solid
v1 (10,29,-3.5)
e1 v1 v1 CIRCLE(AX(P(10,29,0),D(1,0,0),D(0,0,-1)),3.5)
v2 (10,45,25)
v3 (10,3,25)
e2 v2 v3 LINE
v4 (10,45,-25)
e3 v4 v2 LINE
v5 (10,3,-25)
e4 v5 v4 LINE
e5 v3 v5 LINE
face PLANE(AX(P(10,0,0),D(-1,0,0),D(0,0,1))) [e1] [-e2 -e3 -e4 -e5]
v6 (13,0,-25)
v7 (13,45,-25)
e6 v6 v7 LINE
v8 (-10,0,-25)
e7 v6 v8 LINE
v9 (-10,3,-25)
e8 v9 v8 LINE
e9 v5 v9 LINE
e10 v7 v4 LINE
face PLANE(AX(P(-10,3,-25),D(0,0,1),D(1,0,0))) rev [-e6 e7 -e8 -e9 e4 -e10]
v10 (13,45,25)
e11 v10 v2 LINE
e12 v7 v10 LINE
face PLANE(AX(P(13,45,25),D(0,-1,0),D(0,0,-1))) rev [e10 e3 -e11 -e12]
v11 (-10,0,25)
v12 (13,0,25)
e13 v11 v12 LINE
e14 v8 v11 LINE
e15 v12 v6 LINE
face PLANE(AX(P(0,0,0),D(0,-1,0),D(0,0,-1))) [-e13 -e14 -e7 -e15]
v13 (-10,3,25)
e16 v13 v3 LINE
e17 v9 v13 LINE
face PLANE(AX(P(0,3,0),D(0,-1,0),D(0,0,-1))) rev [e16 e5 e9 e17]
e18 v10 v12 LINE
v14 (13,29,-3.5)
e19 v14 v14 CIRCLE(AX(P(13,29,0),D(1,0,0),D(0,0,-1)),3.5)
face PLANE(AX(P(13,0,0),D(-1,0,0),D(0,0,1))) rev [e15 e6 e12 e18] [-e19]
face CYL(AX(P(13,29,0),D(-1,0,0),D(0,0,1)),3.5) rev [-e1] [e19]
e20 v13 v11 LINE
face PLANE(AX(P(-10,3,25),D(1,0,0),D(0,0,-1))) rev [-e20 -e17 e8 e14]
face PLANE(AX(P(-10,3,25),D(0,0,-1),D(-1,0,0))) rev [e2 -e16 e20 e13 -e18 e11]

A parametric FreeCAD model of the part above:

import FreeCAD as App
import Part
import Sketcher
from FreeCAD import Vector
Q = App.Units.Quantity

doc = App.newDocument("Part")
body = doc.addObject("PartDesign::Body", "Body")

sketch1 = body.newObject("Sketcher::SketchObject", "Sketch")
sketch1.AttachmentSupport = (doc.getObject("XZ_Plane"), [""])
sketch1.MapMode = "FlatFace"
sketch1.addGeometry([
    Part.LineSegment(Vector(-10, -25, 0), Vector(-10, 25, 0)),
    Part.LineSegment(Vector(-10, 25, 0), Vector(10, 25, 0)),
    Part.LineSegment(Vector(10, 25, 0), Vector(10, -25, 0)),
    Part.LineSegment(Vector(10, -25, 0), Vector(-10, -25, 0)),
], False)
sketch1.addConstraint([
    Sketcher.Constraint("Coincident", 0, 2, 1, 1),
    Sketcher.Constraint("Coincident", 1, 2, 2, 1),
    Sketcher.Constraint("Coincident", 2, 2, 3, 1),
    Sketcher.Constraint("Coincident", 3, 2, 0, 1),
    Sketcher.Constraint("Vertical", 0),
    Sketcher.Constraint("Horizontal", 1),
    Sketcher.Constraint("Vertical", 2),
    Sketcher.Constraint("Horizontal", 3),
    Sketcher.Constraint("Symmetric", 0, 2, 2, 2, -1, 1),
    Sketcher.Constraint("DistanceX", 1, 1, 1, 2, Q("20 mm")),
    Sketcher.Constraint("DistanceY", 0, 1, 0, 2, Q("50 mm")),
])
pad1 = body.newObject("PartDesign::Pad", "Pad")
pad1.Profile = sketch1
pad1.Length = 3
pad1.Reversed = True

sketch2 = body.newObject("Sketcher::SketchObject", "Sketch001")
sketch2.AttachmentSupport = (doc.getObject("YZ_Plane"), [""])
sketch2.MapMode = "FlatFace"
sketch2.AttachmentOffset = App.Placement(Vector(0, 0, 10), App.Rotation())
sketch2.addGeometry([
    Part.LineSegment(Vector(45, 25, 0), Vector(0, 25, 0)),
    Part.LineSegment(Vector(0, 25, 0), Vector(0, -25, 0)),
    Part.LineSegment(Vector(0, -25, 0), Vector(45, -25, 0)),
    Part.LineSegment(Vector(45, -25, 0), Vector(45, 25, 0)),
    Part.Circle(Vector(29, 0, 0), Vector(0, 0, 1), 3.5),
], False)
sketch2.addConstraint([
    Sketcher.Constraint("Coincident", 0, 2, 1, 1),
    Sketcher.Constraint("Coincident", 1, 2, 2, 1),
    Sketcher.Constraint("Coincident", 2, 2, 3, 1),
    Sketcher.Constraint("Coincident", 3, 2, 0, 1),
    Sketcher.Constraint("Horizontal", 0),
    Sketcher.Constraint("Vertical", 1),
    Sketcher.Constraint("Horizontal", 2),
    Sketcher.Constraint("Vertical", 3),
    Sketcher.Constraint("Symmetric", 0, 2, 1, 2, -1, 1),
    Sketcher.Constraint("PointOnObject", 4, 3, -1),
    Sketcher.Constraint("Diameter", 4, Q("7 mm")),
    Sketcher.Constraint("DistanceX", 0, 2, 0, 1, Q("45 mm")),
    Sketcher.Constraint("DistanceY", 1, 2, 1, 1, Q("50 mm")),
    Sketcher.Constraint("DistanceX", -1, 1, 4, 3, Q("29 mm")),
])
pad2 = body.newObject("PartDesign::Pad", "Pad001")
pad2.Profile = sketch2
pad2.Length = 3

doc.recompute()
